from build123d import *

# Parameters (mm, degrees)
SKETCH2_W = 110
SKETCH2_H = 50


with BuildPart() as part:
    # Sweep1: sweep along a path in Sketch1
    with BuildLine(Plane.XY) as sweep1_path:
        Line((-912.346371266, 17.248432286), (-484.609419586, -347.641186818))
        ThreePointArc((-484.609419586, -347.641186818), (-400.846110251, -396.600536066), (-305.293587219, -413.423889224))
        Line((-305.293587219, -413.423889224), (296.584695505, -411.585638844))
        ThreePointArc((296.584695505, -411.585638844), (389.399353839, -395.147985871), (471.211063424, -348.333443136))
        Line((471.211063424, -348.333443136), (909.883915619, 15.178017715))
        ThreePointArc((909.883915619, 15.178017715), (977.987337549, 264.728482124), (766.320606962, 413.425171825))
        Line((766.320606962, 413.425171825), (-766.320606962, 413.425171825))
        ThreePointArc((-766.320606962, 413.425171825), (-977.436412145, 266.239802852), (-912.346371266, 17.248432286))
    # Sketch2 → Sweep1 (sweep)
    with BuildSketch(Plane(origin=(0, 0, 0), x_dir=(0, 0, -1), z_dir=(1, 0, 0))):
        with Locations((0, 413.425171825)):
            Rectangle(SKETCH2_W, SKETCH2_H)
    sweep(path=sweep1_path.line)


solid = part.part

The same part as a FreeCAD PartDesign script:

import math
import FreeCAD as App
import Part
import Sketcher

V = App.Vector


def add_polygon(sketch, points):
    """Adds a closed chain of lines whose ends are joined by coincident constraints."""
    first, n = sketch.GeometryCount, len(points)
    for a, b in zip(points, points[1:] + points[:1]):
        sketch.addGeometry(Part.LineSegment(App.Vector(*a, 0), App.Vector(*b, 0)), False)
    for i in range(n):
        sketch.addConstraint(Sketcher.Constraint("Coincident", first + i, 2, first + (i + 1) % n, 1))

doc = App.newDocument("Part")
params = doc.addObject("Spreadsheet::Sheet", "Params")
for row, (alias, value) in enumerate([
    ("sketch1_width", "50 mm"),
    ("sketch1_height", "110 mm"),
    ("sketch2_radius", "275 mm"),
    ("sketch2_radius2", "225 mm"),
], start=1):
    params.set(f"A{row}", alias)
    params.set(f"B{row}", "=" + value)
    params.setAlias(f"B{row}", alias)

body = doc.addObject("PartDesign::Body", "Body")

sketch1 = doc.addObject("Sketcher::SketchObject", "Sketch")
body.addObject(sketch1)
sketch1.AttachmentSupport = (doc.YZ_Plane, [""])
sketch1.MapMode = "FlatFace"
add_polygon(sketch1, [(438, 55), (388, 55), (388, -55), (438, -55)])
sketch1.addConstraint([
    Sketcher.Constraint("Horizontal", 0),
    Sketcher.Constraint("Vertical", 1),
    Sketcher.Constraint("Horizontal", 2),
    Sketcher.Constraint("Vertical", 3),
    Sketcher.Constraint("DistanceX", 0, 2, 0, 1, 50.0),
    Sketcher.Constraint("DistanceY", 1, 2, 1, 1, 110.0),
    Sketcher.Constraint("DistanceY", -1, 1, 0, 2, 55.0),
    Sketcher.Constraint("DistanceX", -1, 1, 0, 2, 388.425172),
])
sketch1.setExpression("Constraints[8]", "Params.sketch1_width")
sketch1.setExpression("Constraints[9]", "Params.sketch1_height")

sketch2 = doc.addObject("Sketcher::SketchObject", "Sketch001")
body.addObject(sketch2)
sketch2.AttachmentSupport = (doc.XY_Plane, [""])
sketch2.MapMode = "FlatFace"
sketch2.addGeometry([
    Part.LineSegment(V(-912, 17, 0), V(-485, -348, 0)),
    Part.ArcOfCircle(Part.Circle(V(-306, -138, 0), V(0, 0, 1), 275), math.radians(-130), math.radians(-90)),
    Part.LineSegment(V(-305, -413, 0), V(297, -412, 0)),
    Part.ArcOfCircle(Part.Circle(V(296, -137, 0), V(0, 0, 1), 275), math.radians(-90), math.radians(-50)),
    Part.LineSegment(V(471, -348, 0), V(910, 15, 0)),
    Part.ArcOfCircle(Part.Circle(V(766, 188, 0), V(0, 0, 1), 225), math.radians(-50), math.radians(90)),
    Part.LineSegment(V(766, 413, 0), V(-766, 413, 0)),
    Part.ArcOfCircle(Part.Circle(V(-766, 188, 0), V(0, 0, 1), 225), math.radians(90), math.radians(230)),
], False)
sketch2.addConstraint([
    Sketcher.Constraint("Tangent", 0, 2, 1, 1),
    Sketcher.Constraint("Tangent", 1, 2, 2, 1),
    Sketcher.Constraint("Tangent", 2, 2, 3, 1),
    Sketcher.Constraint("Tangent", 3, 2, 4, 1),
    Sketcher.Constraint("Tangent", 4, 2, 5, 1),
    Sketcher.Constraint("Tangent", 5, 2, 6, 1),
    Sketcher.Constraint("Tangent", 6, 2, 7, 1),
    Sketcher.Constraint("Tangent", 7, 2, 0, 1),
    Sketcher.Constraint("Horizontal", 6),
    Sketcher.Constraint("Equal", 1, 3),
    Sketcher.Constraint("Equal", 5, 7),
    Sketcher.Constraint("Radius", 1, 275.0),
    Sketcher.Constraint("Radius", 5, 225.0),
    Sketcher.Constraint("DistanceX", 3, 3, 2, 2, 0.839898),
    Sketcher.Constraint("DistanceX", 1, 3, 4, 2, 1216.017401),
    Sketcher.Constraint("Distance", 2, 601.88109),
    Sketcher.Constraint("Distance", 4, 569.714361),
    Sketcher.Constraint("DistanceX", 6, 2, 6, 1, 1532.641214),
    Sketcher.Constraint("DistanceY", 1, 3, -1, 1, 138.425172),
    Sketcher.Constraint("DistanceX", 0, 2, -1, 1, 484.60942),
])
sketch2.setExpression("Constraints[11]", "Params.sketch2_radius")
sketch2.setExpression("Constraints[12]", "Params.sketch2_radius2")
doc.recompute()

additivepipe = doc.addObject("PartDesign::AdditivePipe", "AdditivePipe")
body.addObject(additivepipe)
additivepipe.Profile = sketch1
additivepipe.Spine = (sketch2, ["Edge1", "Edge2", "Edge3", "Edge4", "Edge5", "Edge6", "Edge7", "Edge8"])

doc.recompute()
